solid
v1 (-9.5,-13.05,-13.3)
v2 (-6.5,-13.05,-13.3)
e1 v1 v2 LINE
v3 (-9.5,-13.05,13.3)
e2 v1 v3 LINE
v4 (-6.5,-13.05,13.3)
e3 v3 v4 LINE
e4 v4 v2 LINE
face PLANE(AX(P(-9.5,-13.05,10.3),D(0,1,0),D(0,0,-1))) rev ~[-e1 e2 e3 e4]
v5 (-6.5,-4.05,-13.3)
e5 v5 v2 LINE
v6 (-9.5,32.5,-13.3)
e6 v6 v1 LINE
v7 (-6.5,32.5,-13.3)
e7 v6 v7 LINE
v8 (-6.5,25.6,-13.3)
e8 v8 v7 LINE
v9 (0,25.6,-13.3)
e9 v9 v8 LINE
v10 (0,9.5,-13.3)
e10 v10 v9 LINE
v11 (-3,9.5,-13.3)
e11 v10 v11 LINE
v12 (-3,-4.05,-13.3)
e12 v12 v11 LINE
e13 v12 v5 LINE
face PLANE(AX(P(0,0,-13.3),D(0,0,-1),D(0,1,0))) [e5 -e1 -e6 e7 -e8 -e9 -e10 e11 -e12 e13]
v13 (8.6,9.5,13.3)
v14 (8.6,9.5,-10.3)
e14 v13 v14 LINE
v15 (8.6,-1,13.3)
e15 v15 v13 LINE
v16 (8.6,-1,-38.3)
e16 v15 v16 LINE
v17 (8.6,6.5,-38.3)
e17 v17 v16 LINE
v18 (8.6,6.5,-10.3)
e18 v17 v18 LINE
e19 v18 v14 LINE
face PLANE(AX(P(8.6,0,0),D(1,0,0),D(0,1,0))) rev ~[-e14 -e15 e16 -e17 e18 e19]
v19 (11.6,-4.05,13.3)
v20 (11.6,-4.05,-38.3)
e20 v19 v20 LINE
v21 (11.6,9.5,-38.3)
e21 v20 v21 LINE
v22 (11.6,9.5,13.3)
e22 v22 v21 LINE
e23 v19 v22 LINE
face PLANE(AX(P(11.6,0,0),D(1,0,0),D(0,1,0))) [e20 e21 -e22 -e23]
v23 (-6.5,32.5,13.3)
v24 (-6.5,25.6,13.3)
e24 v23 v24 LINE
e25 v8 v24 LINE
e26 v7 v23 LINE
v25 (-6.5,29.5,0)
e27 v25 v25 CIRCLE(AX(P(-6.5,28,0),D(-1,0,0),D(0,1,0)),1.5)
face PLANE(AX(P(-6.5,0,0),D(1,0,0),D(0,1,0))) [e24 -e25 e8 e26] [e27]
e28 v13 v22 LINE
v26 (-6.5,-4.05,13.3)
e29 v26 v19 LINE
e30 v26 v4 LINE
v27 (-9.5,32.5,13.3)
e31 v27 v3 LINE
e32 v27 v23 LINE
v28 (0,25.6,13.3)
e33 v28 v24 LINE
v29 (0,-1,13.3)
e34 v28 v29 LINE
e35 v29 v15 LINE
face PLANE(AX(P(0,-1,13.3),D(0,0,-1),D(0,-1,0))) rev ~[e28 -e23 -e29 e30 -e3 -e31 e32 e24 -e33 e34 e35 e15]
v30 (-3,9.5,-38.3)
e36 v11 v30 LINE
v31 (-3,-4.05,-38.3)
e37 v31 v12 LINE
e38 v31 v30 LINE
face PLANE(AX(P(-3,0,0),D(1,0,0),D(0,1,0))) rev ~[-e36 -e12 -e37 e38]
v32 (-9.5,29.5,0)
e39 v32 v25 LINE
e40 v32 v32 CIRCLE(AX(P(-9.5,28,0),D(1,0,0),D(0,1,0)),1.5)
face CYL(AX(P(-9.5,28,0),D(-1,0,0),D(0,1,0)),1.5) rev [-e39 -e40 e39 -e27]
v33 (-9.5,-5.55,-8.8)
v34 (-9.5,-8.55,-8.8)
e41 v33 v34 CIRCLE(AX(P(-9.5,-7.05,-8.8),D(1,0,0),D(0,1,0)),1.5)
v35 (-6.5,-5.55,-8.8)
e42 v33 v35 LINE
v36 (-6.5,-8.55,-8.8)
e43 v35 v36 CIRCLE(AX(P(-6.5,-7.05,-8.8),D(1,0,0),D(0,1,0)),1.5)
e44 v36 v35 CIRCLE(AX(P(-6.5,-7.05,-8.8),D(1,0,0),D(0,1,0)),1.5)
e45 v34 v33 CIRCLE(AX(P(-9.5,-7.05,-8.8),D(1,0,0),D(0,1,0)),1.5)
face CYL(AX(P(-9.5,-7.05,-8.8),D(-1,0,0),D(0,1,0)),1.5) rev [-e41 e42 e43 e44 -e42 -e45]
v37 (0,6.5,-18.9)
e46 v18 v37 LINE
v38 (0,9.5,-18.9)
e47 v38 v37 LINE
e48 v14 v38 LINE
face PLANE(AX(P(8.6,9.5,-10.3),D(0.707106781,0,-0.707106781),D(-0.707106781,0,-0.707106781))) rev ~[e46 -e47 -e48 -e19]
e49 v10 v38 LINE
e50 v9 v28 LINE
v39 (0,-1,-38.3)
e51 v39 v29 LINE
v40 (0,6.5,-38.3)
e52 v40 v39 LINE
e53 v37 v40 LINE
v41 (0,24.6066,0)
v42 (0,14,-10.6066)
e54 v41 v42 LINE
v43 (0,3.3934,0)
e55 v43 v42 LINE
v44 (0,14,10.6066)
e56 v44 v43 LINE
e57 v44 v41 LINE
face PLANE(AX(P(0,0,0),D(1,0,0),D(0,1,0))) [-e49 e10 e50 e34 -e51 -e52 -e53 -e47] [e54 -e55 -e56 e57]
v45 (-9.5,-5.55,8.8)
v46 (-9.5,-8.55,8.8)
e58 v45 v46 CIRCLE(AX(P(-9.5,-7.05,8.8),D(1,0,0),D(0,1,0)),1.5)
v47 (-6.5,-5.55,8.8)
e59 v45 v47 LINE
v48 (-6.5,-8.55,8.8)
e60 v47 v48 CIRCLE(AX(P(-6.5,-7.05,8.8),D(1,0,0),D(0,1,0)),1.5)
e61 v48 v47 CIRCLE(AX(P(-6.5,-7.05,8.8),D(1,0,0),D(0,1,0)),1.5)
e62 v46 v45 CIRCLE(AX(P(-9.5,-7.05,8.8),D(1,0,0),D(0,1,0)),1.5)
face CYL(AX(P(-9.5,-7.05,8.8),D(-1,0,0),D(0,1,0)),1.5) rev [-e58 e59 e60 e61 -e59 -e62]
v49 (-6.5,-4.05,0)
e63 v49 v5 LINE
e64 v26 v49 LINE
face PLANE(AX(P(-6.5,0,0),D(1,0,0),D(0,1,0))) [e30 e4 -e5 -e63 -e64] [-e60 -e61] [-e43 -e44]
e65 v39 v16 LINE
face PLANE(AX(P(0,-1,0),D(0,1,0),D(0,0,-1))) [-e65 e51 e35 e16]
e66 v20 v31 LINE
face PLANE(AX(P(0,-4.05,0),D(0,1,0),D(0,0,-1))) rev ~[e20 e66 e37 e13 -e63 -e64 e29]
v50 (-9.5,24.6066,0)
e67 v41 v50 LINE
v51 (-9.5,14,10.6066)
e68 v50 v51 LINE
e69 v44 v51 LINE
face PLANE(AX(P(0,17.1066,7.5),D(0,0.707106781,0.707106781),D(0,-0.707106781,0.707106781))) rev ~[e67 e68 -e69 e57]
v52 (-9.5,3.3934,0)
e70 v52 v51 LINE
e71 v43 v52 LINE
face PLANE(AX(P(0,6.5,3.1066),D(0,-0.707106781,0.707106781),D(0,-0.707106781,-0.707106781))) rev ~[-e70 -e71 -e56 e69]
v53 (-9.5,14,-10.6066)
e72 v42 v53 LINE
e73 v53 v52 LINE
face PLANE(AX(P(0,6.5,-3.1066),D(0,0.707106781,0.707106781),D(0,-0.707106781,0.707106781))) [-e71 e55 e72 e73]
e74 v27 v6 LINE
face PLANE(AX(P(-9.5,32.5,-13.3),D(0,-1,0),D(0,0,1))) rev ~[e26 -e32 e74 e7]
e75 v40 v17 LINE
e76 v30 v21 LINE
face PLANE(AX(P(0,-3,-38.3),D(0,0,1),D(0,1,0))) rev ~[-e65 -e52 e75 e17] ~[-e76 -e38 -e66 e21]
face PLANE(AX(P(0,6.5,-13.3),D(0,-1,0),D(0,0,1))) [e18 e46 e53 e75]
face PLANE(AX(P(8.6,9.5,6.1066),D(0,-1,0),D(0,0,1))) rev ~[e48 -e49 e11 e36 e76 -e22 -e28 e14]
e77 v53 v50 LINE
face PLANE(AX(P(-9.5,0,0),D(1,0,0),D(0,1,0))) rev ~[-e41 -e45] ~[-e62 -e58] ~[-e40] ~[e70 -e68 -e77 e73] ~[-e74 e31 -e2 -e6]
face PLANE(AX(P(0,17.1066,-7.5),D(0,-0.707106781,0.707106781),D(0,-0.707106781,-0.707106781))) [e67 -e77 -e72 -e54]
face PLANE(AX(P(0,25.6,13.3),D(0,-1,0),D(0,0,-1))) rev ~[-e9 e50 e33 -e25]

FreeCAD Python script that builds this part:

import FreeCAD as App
import Part
import Sketcher
from FreeCAD import Vector

doc = App.newDocument("Part")
body = doc.addObject("PartDesign::Body", "Body")
body.AllowCompound = True

# Sketch on YZ plane
sketch1 = body.newObject("Sketcher::SketchObject", "Sketch")
sketch1.AttachmentSupport = (doc.getObject("YZ_Plane"), [""])
sketch1.MapMode = "FlatFace"
sketch1.addGeometry([
    Part.LineSegment(Vector(-1, 13.3, 0), Vector(-4, 13.3, 0)),  # 0
    Part.LineSegment(Vector(-4, 13.3, 0), Vector(-4, -38.3, 0)),  # 1
    Part.LineSegment(Vector(-4, -38.3, 0), Vector(-1, -38.3, 0)),  # 2
    Part.LineSegment(Vector(-1, -38.3, 0), Vector(-1, 13.3, 0)),  # 3
    Part.LineSegment(Vector(6.5, -10.3, 0), Vector(6.5, -38.3, 0)),  # 4
    Part.LineSegment(Vector(6.5, -38.3, 0), Vector(9.5, -38.3, 0)),  # 5
    Part.LineSegment(Vector(9.5, -38.3, 0), Vector(9.5, -10.3, 0)),  # 6
    Part.LineSegment(Vector(9.5, -10.3, 0), Vector(6.5, -10.3, 0)),  # 7
], False)
sketch1.addConstraint([
    Sketcher.Constraint("Coincident", 0, 2, 1, 1),
    Sketcher.Constraint("Coincident", 1, 2, 2, 1),
    Sketcher.Constraint("Coincident", 2, 2, 3, 1),
    Sketcher.Constraint("Coincident", 3, 2, 0, 1),
    Sketcher.Constraint("Coincident", 4, 2, 5, 1),
    Sketcher.Constraint("Coincident", 5, 2, 6, 1),
    Sketcher.Constraint("Coincident", 6, 2, 7, 1),
    Sketcher.Constraint("Coincident", 7, 2, 4, 1),
    Sketcher.Constraint("Horizontal", 0),
    Sketcher.Constraint("Vertical", 1),
    Sketcher.Constraint("Horizontal", 2),
    Sketcher.Constraint("Vertical", 3),
    Sketcher.Constraint("Vertical", 4),
    Sketcher.Constraint("Horizontal", 5),
    Sketcher.Constraint("Vertical", 6),
    Sketcher.Constraint("Horizontal", 7),
    Sketcher.Constraint("Horizontal", 2, 2, 4, 2),
    Sketcher.Constraint("DistanceX", 5, 1, 5, 2, 3.0),
    Sketcher.Constraint("DistanceX", 2, 2, -1, 1, 1.0),
    Sketcher.Constraint("DistanceY", -1, 1, 0, 2, 13.3),
    Sketcher.Constraint("DistanceX", -1, 1, 4, 2, 6.5),
    Sketcher.Constraint("DistanceY", 4, 2, 4, 1, 28.0),
    Sketcher.Constraint("DistanceY", 1, 2, 1, 1, 51.6),
    Sketcher.Constraint("DistanceX", 0, 2, 0, 1, 3.05),
])
pad1 = body.newObject("PartDesign::Pad", "Pad")
pad1.Profile = sketch1
pad1.Length = 8.6

# Sketch on YZ plane
sketch2 = body.newObject("Sketcher::SketchObject", "Sketch001")
sketch2.AttachmentSupport = (doc.getObject("YZ_Plane"), [""])
sketch2.MapMode = "FlatFace"
sketch2.addGeometry([
    Part.LineSegment(Vector(-4, 13, 0), Vector(-4, -13, 0)),  # 0
    Part.LineSegment(Vector(-4, -13, 0), Vector(26, -13, 0)),  # 1
    Part.LineSegment(Vector(26, -13, 0), Vector(26, 13, 0)),  # 2
    Part.LineSegment(Vector(26, 13, 0), Vector(-4, 13, 0)),  # 3
    Part.LineSegment(Vector(3, 0, 0), Vector(14, 11, 0)),  # 4
    Part.LineSegment(Vector(14, 11, 0), Vector(25, 0, 0)),  # 5
    Part.LineSegment(Vector(25, 0, 0), Vector(14, -11, 0)),  # 6
    Part.LineSegment(Vector(14, -11, 0), Vector(3, 0, 0)),  # 7
], False)
sketch2.addConstraint([
    Sketcher.Constraint("Coincident", 0, 2, 1, 1),
    Sketcher.Constraint("Coincident", 1, 2, 2, 1),
    Sketcher.Constraint("Coincident", 2, 2, 3, 1),
    Sketcher.Constraint("Coincident", 3, 2, 0, 1),
    Sketcher.Constraint("Coincident", 4, 2, 5, 1),
    Sketcher.Constraint("Coincident", 5, 2, 6, 1),
    Sketcher.Constraint("Coincident", 6, 2, 7, 1),
    Sketcher.Constraint("Coincident", 7, 2, 4, 1),
    Sketcher.Constraint("Vertical", 0),
    Sketcher.Constraint("Horizontal", 1),
    Sketcher.Constraint("Vertical", 2),
    Sketcher.Constraint("Horizontal", 3),
    Sketcher.Constraint("Symmetric", 4, 2, 6, 2, -1),
    Sketcher.Constraint("PointOnObject", 5, 2, -1),
    Sketcher.Constraint("PointOnObject", 7, 2, -1),
    Sketcher.Constraint("Perpendicular", 4, 5),
    Sketcher.Constraint("Perpendicular", 5, 6),
    Sketcher.Constraint("Distance", 4, 15.0),
    Sketcher.Constraint("DistanceX", -1, 1, 4, 2, 14.0),
    Sketcher.Constraint("DistanceY", 0, 2, -1, 1, 13.3),
    Sketcher.Constraint("DistanceY", -1, 1, 2, 2, 13.3),
    Sketcher.Constraint("DistanceX", 1, 1, 1, 2, 29.65),
    Sketcher.Constraint("DistanceX", -1, 1, 1, 2, 25.6),
])
pad2 = body.newObject("PartDesign::Pad", "Pad001")
pad2.Profile = sketch2
pad2.Length = 9.5
pad2.Reversed = True

# Sketch on YZ plane
sketch3 = body.newObject("Sketcher::SketchObject", "Sketch002")
sketch3.AttachmentSupport = (doc.getObject("YZ_Plane"), [""])
sketch3.MapMode = "FlatFace"
sketch3.AttachmentOffset = App.Placement(Vector(0, 0, -9.5), App.Rotation())
sketch3.addGeometry([
    Part.LineSegment(Vector(-4, -13.3, 0), Vector(-4, 0, 0)),  # 0
    Part.LineSegment(Vector(-4, 0, 0), Vector(-4, 13.3, 0)),  # 1
    Part.LineSegment(Vector(-4, 13.3, 0), Vector(-13.1, 13.3, 0)),  # 2
    Part.LineSegment(Vector(-13.1, 13.3, 0), Vector(-13.1, -13.3, 0)),  # 3
    Part.LineSegment(Vector(-13.1, -13.3, 0), Vector(-4, -13.3, 0)),  # 4
    Part.Circle(Vector(-7, -8.8, 0), Vector(0, 0, 1), 1.5),  # 5
    Part.Circle(Vector(-7, 8.8, 0), Vector(0, 0, 1), 1.5),  # 6
    Part.LineSegment(Vector(25.6, -13.3, 0), Vector(32.5, -13.3, 0)),  # 7
    Part.LineSegment(Vector(32.5, -13.3, 0), Vector(32.5, 13.3, 0)),  # 8
    Part.LineSegment(Vector(32.5, 13.3, 0), Vector(25.6, 13.3, 0)),  # 9
    Part.LineSegment(Vector(25.6, 13.3, 0), Vector(25.6, -13.3, 0)),  # 10
    Part.Circle(Vector(28, 0, 0), Vector(0, 0, 1), 1.5),  # 11
], False)
sketch3.addConstraint([
    Sketcher.Constraint("Coincident", 0, 2, 1, 1),
    Sketcher.Constraint("Coincident", 1, 2, 2, 1),
    Sketcher.Constraint("Coincident", 2, 2, 3, 1),
    Sketcher.Constraint("Coincident", 3, 2, 4, 1),
    Sketcher.Constraint("Coincident", 4, 2, 0, 1),
    Sketcher.Constraint("Coincident", 7, 2, 8, 1),
    Sketcher.Constraint("Coincident", 8, 2, 9, 1),
    Sketcher.Constraint("Coincident", 9, 2, 10, 1),
    Sketcher.Constraint("Coincident", 10, 2, 7, 1),
    Sketcher.Constraint("Vertical", 0),
    Sketcher.Constraint("Vertical", 1),
    Sketcher.Constraint("Horizontal", 2),
    Sketcher.Constraint("Vertical", 3),
    Sketcher.Constraint("Horizontal", 4),
    Sketcher.Constraint("Horizontal", 7),
    Sketcher.Constraint("Vertical", 8),
    Sketcher.Constraint("Horizontal", 9),
    Sketcher.Constraint("Vertical", 10),
    Sketcher.Constraint("Equal", 5, 6),
    Sketcher.Constraint("Equal", 6, 11),
    Sketcher.Constraint("Symmetric", 5, 3, 6, 3, -1),
    Sketcher.Constraint("PointOnObject", 11, 3, -1),
    Sketcher.Constraint("PointOnObject", 0, 2, -1),
    Sketcher.Constraint("Horizontal", 4, 2, 7, 2),
    Sketcher.Constraint("Horizontal", 2, 2, 8, 2),
    Sketcher.Constraint("Equal", 0, 1),
    Sketcher.Constraint("Diameter", 5, 3.0),
    Sketcher.Constraint("DistanceY", 0, 1, 0, 2, 13.3),
    Sketcher.Constraint("DistanceX", 5, 3, 0, 2, 3.0),
    Sketcher.Constraint("DistanceY", 5, 3, -1, 1, 8.8),
    Sketcher.Constraint("DistanceX", 2, 2, 2, 1, 9.0),
    Sketcher.Constraint("DistanceX", 7, 1, 7, 2, 6.9),
    Sketcher.Constraint("DistanceX", -1, 1, 11, 3, 28.0),
    Sketcher.Constraint("DistanceX", -1, 1, 7, 2, 32.5),
    Sketcher.Constraint("DistanceX", 5, 3, -1, 1, 7.05),
])
pad3 = body.newObject("PartDesign::Pad", "Pad002")
pad3.Profile = sketch3
pad3.Length = 3

# Sketch on YZ plane
sketch4 = body.newObject("Sketcher::SketchObject", "Sketch003")
sketch4.AttachmentSupport = (doc.getObject("YZ_Plane"), [""])
sketch4.MapMode = "FlatFace"
sketch4.AttachmentOffset = App.Placement(Vector(0, 0, 8.6), App.Rotation())
sketch4.addGeometry([
    Part.LineSegment(Vector(-4, 13, 0), Vector(-4, -38, 0)),
    Part.LineSegment(Vector(-4, -38, 0), Vector(10, -38, 0)),
    Part.LineSegment(Vector(10, -38, 0), Vector(10, 13, 0)),
    Part.LineSegment(Vector(10, 13, 0), Vector(-4, 13, 0)),
], False)
sketch4.addConstraint([
    Sketcher.Constraint("Coincident", 0, 2, 1, 1),
    Sketcher.Constraint("Coincident", 1, 2, 2, 1),
    Sketcher.Constraint("Coincident", 2, 2, 3, 1),
    Sketcher.Constraint("Coincident", 3, 2, 0, 1),
    Sketcher.Constraint("Vertical", 0),
    Sketcher.Constraint("Horizontal", 1),
    Sketcher.Constraint("Vertical", 2),
    Sketcher.Constraint("Horizontal", 3),
    Sketcher.Constraint("DistanceY", -1, 1, 2, 2, 13.3),
    Sketcher.Constraint("DistanceY", 0, 2, 0, 1, 51.6),
    Sketcher.Constraint("DistanceX", 1, 1, 1, 2, 13.55),
    Sketcher.Constraint("DistanceX", -1, 1, 1, 2, 9.5),
])
pad4 = body.newObject("PartDesign::Pad", "Pad003")
pad4.Profile = sketch4
pad4.Length = 3

# Sketch on XZ plane
sketch5 = body.newObject("Sketcher::SketchObject", "Sketch004")
sketch5.AttachmentSupport = (doc.getObject("XZ_Plane"), [""])
sketch5.MapMode = "FlatFace"
sketch5.AttachmentOffset = App.Placement(Vector(0, 0, -9.5), App.Rotation())
sketch5.addGeometry([
    Part.LineSegment(Vector(0, -19, 0), Vector(0, -10, 0)),
    Part.LineSegment(Vector(0, -10, 0), Vector(9, -10, 0)),
    Part.LineSegment(Vector(9, -10, 0), Vector(0, -19, 0)),
], False)
sketch5.addConstraint([
    Sketcher.Constraint("Coincident", 0, 2, 1, 1),
    Sketcher.Constraint("Coincident", 1, 2, 2, 1),
    Sketcher.Constraint("Coincident", 2, 2, 0, 1),
    Sketcher.Constraint("Vertical", 0),
    Sketcher.Constraint("Horizontal", 1),
    Sketcher.Constraint("PointOnObject", 0, 2, -2),
    Sketcher.Constraint("Equal", 1, 0),
    Sketcher.Constraint("DistanceX", 1, 1, 1, 2, 8.6),
    Sketcher.Constraint("DistanceY", 0, 2, -1, 1, 10.3),
])
pocket1 = body.newObject("PartDesign::Pocket", "Pocket")
pocket1.Profile = sketch5
pocket1.Type = "UpToFirst"
pocket1.Reversed = True

# Sketch on YZ plane
sketch6 = body.newObject("Sketcher::SketchObject", "Sketch005")
sketch6.AttachmentSupport = (doc.getObject("YZ_Plane"), [""])
sketch6.MapMode = "FlatFace"
sketch6.addGeometry([
    Part.LineSegment(Vector(10, -38, 0), Vector(10, -13, 0)),
    Part.LineSegment(Vector(10, -13, 0), Vector(-4, -13, 0)),
    Part.LineSegment(Vector(-4, -13, 0), Vector(-4, -38, 0)),
    Part.LineSegment(Vector(-4, -38, 0), Vector(10, -38, 0)),
], False)
sketch6.addConstraint([
    Sketcher.Constraint("Coincident", 0, 2, 1, 1),
    Sketcher.Constraint("Coincident", 1, 2, 2, 1),
    Sketcher.Constraint("Coincident", 2, 2, 3, 1),
    Sketcher.Constraint("Coincident", 3, 2, 0, 1),
    Sketcher.Constraint("Vertical", 0),
    Sketcher.Constraint("Horizontal", 1),
    Sketcher.Constraint("Vertical", 2),
    Sketcher.Constraint("Horizontal", 3),
    Sketcher.Constraint("DistanceY", 0, 1, 0, 2, 25.0),
    Sketcher.Constraint("DistanceY", 0, 2, -1, 1, 13.3),
    Sketcher.Constraint("DistanceX", 1, 2, 1, 1, 13.55),
    Sketcher.Constraint("DistanceX", -1, 1, 0, 2, 9.5),
])
pad5 = body.newObject("PartDesign::Pad", "Pad004")
pad5.Profile = sketch6
pad5.Length = 3
pad5.Reversed = True

doc.recompute()
